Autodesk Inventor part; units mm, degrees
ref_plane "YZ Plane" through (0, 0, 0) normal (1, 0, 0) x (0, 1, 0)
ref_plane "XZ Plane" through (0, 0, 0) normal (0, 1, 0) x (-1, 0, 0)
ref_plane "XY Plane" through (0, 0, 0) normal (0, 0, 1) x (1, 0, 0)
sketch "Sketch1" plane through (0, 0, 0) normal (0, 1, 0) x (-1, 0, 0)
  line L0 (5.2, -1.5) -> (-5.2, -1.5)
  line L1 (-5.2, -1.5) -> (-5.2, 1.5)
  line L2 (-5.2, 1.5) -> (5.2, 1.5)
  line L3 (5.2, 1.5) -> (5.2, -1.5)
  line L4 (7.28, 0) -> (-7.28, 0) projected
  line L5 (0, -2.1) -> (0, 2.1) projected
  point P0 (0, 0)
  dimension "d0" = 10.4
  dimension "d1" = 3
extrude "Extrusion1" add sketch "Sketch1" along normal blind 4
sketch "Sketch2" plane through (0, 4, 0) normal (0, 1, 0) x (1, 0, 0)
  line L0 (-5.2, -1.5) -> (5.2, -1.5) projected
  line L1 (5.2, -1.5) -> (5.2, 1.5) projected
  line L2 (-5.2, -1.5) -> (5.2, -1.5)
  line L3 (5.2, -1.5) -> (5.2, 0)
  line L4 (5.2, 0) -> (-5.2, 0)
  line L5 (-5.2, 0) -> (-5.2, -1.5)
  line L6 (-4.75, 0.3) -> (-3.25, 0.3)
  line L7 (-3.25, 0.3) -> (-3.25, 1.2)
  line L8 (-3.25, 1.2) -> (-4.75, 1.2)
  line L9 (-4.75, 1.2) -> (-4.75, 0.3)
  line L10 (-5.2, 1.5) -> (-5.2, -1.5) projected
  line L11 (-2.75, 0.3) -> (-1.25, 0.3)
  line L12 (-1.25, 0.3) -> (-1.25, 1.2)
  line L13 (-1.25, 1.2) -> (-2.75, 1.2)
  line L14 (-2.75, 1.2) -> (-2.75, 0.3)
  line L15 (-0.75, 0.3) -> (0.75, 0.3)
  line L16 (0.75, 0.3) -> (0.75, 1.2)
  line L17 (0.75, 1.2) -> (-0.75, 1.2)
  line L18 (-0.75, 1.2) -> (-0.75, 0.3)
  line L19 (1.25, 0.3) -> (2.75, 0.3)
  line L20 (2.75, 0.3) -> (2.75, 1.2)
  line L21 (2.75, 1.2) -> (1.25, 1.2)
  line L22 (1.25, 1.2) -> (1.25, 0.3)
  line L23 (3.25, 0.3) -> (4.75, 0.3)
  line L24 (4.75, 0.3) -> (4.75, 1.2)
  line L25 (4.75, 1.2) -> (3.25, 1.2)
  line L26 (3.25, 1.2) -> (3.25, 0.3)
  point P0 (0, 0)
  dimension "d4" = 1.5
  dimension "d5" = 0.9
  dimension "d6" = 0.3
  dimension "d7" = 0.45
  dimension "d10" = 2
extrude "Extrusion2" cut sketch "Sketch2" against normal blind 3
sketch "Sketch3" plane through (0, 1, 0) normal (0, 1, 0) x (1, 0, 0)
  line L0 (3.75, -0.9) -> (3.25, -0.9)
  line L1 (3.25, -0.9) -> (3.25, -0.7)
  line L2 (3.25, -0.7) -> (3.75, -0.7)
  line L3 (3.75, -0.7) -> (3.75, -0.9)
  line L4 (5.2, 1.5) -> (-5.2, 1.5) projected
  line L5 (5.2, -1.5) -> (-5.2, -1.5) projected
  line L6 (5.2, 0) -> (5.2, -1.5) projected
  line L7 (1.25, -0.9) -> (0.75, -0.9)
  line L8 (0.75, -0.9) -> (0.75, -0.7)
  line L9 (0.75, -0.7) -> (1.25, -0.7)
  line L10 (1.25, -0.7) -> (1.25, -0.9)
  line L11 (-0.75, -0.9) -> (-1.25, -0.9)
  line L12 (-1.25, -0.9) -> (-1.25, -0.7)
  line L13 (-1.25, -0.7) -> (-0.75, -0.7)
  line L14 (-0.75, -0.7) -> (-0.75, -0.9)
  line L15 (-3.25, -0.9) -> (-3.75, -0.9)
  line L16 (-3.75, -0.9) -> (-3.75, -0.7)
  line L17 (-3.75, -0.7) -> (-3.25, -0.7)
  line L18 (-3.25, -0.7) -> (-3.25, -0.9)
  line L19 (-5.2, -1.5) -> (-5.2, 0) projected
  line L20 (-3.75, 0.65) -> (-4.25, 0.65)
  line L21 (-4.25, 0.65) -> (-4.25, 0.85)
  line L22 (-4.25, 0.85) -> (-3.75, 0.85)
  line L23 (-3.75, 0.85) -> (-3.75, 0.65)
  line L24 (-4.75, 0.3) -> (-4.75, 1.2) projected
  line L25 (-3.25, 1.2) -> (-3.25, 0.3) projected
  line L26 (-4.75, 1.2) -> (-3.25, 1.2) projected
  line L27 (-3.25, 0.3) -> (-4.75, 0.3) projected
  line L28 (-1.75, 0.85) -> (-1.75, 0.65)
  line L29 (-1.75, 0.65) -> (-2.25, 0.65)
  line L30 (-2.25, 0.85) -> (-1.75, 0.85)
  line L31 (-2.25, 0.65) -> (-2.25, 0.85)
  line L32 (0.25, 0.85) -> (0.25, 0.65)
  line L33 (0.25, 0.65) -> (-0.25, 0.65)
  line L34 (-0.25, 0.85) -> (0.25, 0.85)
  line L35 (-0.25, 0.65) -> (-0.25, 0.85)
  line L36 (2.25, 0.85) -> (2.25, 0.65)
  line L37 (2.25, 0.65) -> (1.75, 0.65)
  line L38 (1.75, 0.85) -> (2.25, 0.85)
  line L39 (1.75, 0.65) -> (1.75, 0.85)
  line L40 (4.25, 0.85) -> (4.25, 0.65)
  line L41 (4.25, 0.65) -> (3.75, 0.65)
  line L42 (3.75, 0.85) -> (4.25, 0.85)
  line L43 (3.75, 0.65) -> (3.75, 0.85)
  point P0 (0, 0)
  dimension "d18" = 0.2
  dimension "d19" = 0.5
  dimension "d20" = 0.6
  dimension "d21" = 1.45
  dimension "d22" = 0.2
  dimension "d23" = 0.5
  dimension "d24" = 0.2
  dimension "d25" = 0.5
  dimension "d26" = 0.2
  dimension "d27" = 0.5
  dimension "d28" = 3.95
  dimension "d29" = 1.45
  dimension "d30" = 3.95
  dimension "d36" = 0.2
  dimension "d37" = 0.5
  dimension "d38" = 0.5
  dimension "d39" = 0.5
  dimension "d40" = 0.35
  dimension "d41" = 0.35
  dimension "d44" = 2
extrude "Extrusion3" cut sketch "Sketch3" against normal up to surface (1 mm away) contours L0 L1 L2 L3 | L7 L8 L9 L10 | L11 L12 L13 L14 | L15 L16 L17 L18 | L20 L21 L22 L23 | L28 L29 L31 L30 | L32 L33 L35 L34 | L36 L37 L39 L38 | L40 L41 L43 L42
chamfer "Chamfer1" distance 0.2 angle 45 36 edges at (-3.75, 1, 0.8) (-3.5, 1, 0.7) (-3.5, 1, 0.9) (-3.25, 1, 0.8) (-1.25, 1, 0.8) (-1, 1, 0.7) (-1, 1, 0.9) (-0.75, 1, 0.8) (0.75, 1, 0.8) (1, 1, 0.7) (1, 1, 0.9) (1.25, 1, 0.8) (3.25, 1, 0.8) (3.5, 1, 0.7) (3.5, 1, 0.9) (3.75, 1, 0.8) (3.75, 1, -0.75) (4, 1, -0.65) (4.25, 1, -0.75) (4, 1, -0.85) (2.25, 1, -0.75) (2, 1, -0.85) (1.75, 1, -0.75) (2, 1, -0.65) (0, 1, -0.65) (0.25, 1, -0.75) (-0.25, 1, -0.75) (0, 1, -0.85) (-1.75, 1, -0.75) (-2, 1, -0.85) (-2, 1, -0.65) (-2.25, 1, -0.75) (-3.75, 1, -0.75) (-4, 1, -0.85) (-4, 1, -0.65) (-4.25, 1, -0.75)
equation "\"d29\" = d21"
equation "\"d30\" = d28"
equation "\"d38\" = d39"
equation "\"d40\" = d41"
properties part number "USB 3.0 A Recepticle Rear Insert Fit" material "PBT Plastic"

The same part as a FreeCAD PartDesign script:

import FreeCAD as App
import Part
import Sketcher
from FreeCAD import Vector
Q = App.Units.Quantity


def edges_at(feature, points):
    """Names of the edges that pass closest to the given points."""
    edges = feature.Shape.Edges
    near = lambda p: min(range(len(edges)), key=lambda i: edges[i].distToShape(Part.Vertex(*p))[0])
    return sorted({f"Edge{near(p) + 1}" for p in points})


def add_polygon(sketch, points):
    """Adds a closed chain of lines whose ends are joined by coincident constraints."""
    first, n = sketch.GeometryCount, len(points)
    for a, b in zip(points, points[1:] + points[:1]):
        sketch.addGeometry(Part.LineSegment(App.Vector(*a, 0), App.Vector(*b, 0)), False)
    for i in range(n):
        sketch.addConstraint(Sketcher.Constraint("Coincident", first + i, 2, first + (i + 1) % n, 1))

doc = App.newDocument("Part")
params = doc.addObject("Spreadsheet::Sheet", "Params")
for row, (alias, value) in enumerate([
    ("sketch1_height", "3 mm"),
    ("sketch1_width", "10.4 mm"),
    ("pad1_length", "4 mm"),
    ("sketch2_width", "1.5 mm"),
    ("sketch2_height", "0.9 mm"),
    ("pocket1_length", "3 mm"),
    ("sketch3_width", "0.5 mm"),
    ("sketch3_height", "0.2 mm"),
    ("pocket2_length", "1 mm"),
    ("chamfer_size", "0.2 mm"),
], start=1):
    params.set(f"A{row}", alias)
    params.set(f"B{row}", "=" + value)
    params.setAlias(f"B{row}", alias)

body = doc.addObject("PartDesign::Body", "Body")

sketch1 = body.newObject("Sketcher::SketchObject", "Sketch")
sketch1.AttachmentSupport = (doc.getObject("XZ_Plane"), [""])
sketch1.MapMode = "FlatFace"
add_polygon(sketch1, [(-5.2, -1.5), (-5.2, 1.5), (5.2, 1.5), (5.2, -1.5)])
sketch1.addConstraint(Sketcher.Constraint("Vertical", 0))
sketch1.addConstraint(Sketcher.Constraint("Horizontal", 1))
sketch1.addConstraint(Sketcher.Constraint("Vertical", 2))
sketch1.addConstraint(Sketcher.Constraint("Horizontal", 3))
sketch1.addConstraint(Sketcher.Constraint("Symmetric", 0, 2, 2, 2, -1, 1))
sketch1.addConstraint(Sketcher.Constraint("DistanceY", 0, 1, 0, 2, Q("3 mm")))
sketch1.addConstraint(Sketcher.Constraint("DistanceX", 1, 1, 1, 2, Q("10.4 mm")))
sketch1.setExpression("Constraints[9]", "Params.sketch1_height")
sketch1.setExpression("Constraints[10]", "Params.sketch1_width")
pad1 = body.newObject("PartDesign::Pad", "Pad")
pad1.Profile = sketch1
pad1.setExpression("Length", "Params.pad1_length")
pad1.Reversed = True

sketch2 = body.newObject("Sketcher::SketchObject", "Sketch001")
sketch2.AttachmentSupport = (doc.getObject("XZ_Plane"), [""])
sketch2.MapMode = "FlatFace"
sketch2.AttachmentOffset = App.Placement(Vector(0, 0, -4), App.Rotation())
add_polygon(sketch2, [(-5.2, 0), (-5.2, 1.5), (5.2, 1.5), (5.2, 0)])
add_polygon(sketch2, [(-4.75, -1.2), (-4.75, -0.3), (-3.25, -0.3), (-3.25, -1.2)])
add_polygon(sketch2, [(-2.75, -1.2), (-2.75, -0.3), (-1.25, -0.3), (-1.25, -1.2)])
add_polygon(sketch2, [(-0.75, -1.2), (-0.75, -0.3), (0.75, -0.3), (0.75, -1.2)])
add_polygon(sketch2, [(1.25, -1.2), (1.25, -0.3), (2.75, -0.3), (2.75, -1.2)])
add_polygon(sketch2, [(3.25, -1.2), (3.25, -0.3), (4.75, -0.3), (4.75, -1.2)])
sketch2.addConstraint(Sketcher.Constraint("Vertical", 0))
sketch2.addConstraint(Sketcher.Constraint("Horizontal", 1))
sketch2.addConstraint(Sketcher.Constraint("Vertical", 2))
sketch2.addConstraint(Sketcher.Constraint("Horizontal", 3))
sketch2.addConstraint(Sketcher.Constraint("Vertical", 4))
sketch2.addConstraint(Sketcher.Constraint("Horizontal", 5))
sketch2.addConstraint(Sketcher.Constraint("Vertical", 6))
sketch2.addConstraint(Sketcher.Constraint("Horizontal", 7))
sketch2.addConstraint(Sketcher.Constraint("Vertical", 8))
sketch2.addConstraint(Sketcher.Constraint("Horizontal", 9))
sketch2.addConstraint(Sketcher.Constraint("Vertical", 10))
sketch2.addConstraint(Sketcher.Constraint("Horizontal", 11))
sketch2.addConstraint(Sketcher.Constraint("Vertical", 12))
sketch2.addConstraint(Sketcher.Constraint("Horizontal", 13))
sketch2.addConstraint(Sketcher.Constraint("Vertical", 14))
sketch2.addConstraint(Sketcher.Constraint("Horizontal", 15))
sketch2.addConstraint(Sketcher.Constraint("Vertical", 16))
sketch2.addConstraint(Sketcher.Constraint("Horizontal", 17))
sketch2.addConstraint(Sketcher.Constraint("Vertical", 18))
sketch2.addConstraint(Sketcher.Constraint("Horizontal", 19))
sketch2.addConstraint(Sketcher.Constraint("Vertical", 20))
sketch2.addConstraint(Sketcher.Constraint("Horizontal", 21))
sketch2.addConstraint(Sketcher.Constraint("Vertical", 22))
sketch2.addConstraint(Sketcher.Constraint("Horizontal", 23))
sketch2.addConstraint(Sketcher.Constraint("Symmetric", 2, 2, 3, 2, -1, 1))
sketch2.addConstraint(Sketcher.Constraint("Symmetric", 9, 2, 16, 2, -2))
sketch2.addConstraint(Sketcher.Constraint("Symmetric", 11, 2, 18, 2, -2))
sketch2.addConstraint(Sketcher.Constraint("Symmetric", 5, 2, 20, 2, -2))
sketch2.addConstraint(Sketcher.Constraint("Symmetric", 7, 2, 22, 2, -2))
sketch2.addConstraint(Sketcher.Constraint("Horizontal", 5, 2, 8, 2))
sketch2.addConstraint(Sketcher.Constraint("Horizontal", 7, 2, 10, 2))
sketch2.addConstraint(Sketcher.Constraint("Horizontal", 9, 2, 12, 2))
sketch2.addConstraint(Sketcher.Constraint("Horizontal", 11, 2, 14, 2))
sketch2.addConstraint(Sketcher.Constraint("Equal", 7, 9))
sketch2.addConstraint(Sketcher.Constraint("Equal", 11, 13))
sketch2.addConstraint(Sketcher.Constraint("Equal", 23, 0))
sketch2.addConstraint(Sketcher.Constraint("DistanceX", 5, 1, 5, 2, Q("1.5 mm")))
sketch2.addConstraint(Sketcher.Constraint("DistanceY", 4, 1, 4, 2, Q("0.9 mm")))
sketch2.addConstraint(Sketcher.Constraint("DistanceX", 4, 2, 8, 2, Q("2 mm")))
sketch2.addConstraint(Sketcher.Constraint("DistanceX", 8, 2, 12, 2, Q("2 mm")))
sketch2.addConstraint(Sketcher.Constraint("DistanceX", 12, 2, 16, 2, Q("2 mm")))
sketch2.addConstraint(Sketcher.Constraint("DistanceY", 4, 2, -1, 1, Q("0.3 mm")))
sketch2.addConstraint(Sketcher.Constraint("DistanceX", 3, 2, 4, 2, Q("0.45 mm")))
sketch2.setExpression("Constraints[60]", "Params.sketch2_width")
sketch2.setExpression("Constraints[61]", "Params.sketch2_height")
pocket1 = body.newObject("PartDesign::Pocket", "Pocket")
pocket1.Profile = sketch2
pocket1.setExpression("Length", "Params.pocket1_length")
pocket1.Reversed = True

sketch3 = body.newObject("Sketcher::SketchObject", "Sketch002")
sketch3.AttachmentSupport = (doc.getObject("XZ_Plane"), [""])
sketch3.MapMode = "FlatFace"
sketch3.AttachmentOffset = App.Placement(Vector(0, 0, -1), App.Rotation())
add_polygon(sketch3, [(3.25, 0.9), (3.75, 0.9), (3.75, 0.7), (3.25, 0.7)])
add_polygon(sketch3, [(0.75, 0.9), (1.25, 0.9), (1.25, 0.7), (0.75, 0.7)])
add_polygon(sketch3, [(-1.25, 0.9), (-0.75, 0.9), (-0.75, 0.7), (-1.25, 0.7)])
add_polygon(sketch3, [(-3.75, 0.9), (-3.25, 0.9), (-3.25, 0.7), (-3.75, 0.7)])
add_polygon(sketch3, [(-4.25, -0.65), (-3.75, -0.65), (-3.75, -0.85), (-4.25, -0.85)])
add_polygon(sketch3, [(-1.75, -0.65), (-1.75, -0.85), (-2.25, -0.85), (-2.25, -0.65)])
add_polygon(sketch3, [(0.25, -0.65), (0.25, -0.85), (-0.25, -0.85), (-0.25, -0.65)])
add_polygon(sketch3, [(2.25, -0.65), (2.25, -0.85), (1.75, -0.85), (1.75, -0.65)])
add_polygon(sketch3, [(4.25, -0.65), (4.25, -0.85), (3.75, -0.85), (3.75, -0.65)])
sketch3.addConstraint(Sketcher.Constraint("Horizontal", 0))
sketch3.addConstraint(Sketcher.Constraint("Vertical", 1))
sketch3.addConstraint(Sketcher.Constraint("Horizontal", 2))
sketch3.addConstraint(Sketcher.Constraint("Vertical", 3))
sketch3.addConstraint(Sketcher.Constraint("Horizontal", 4))
sketch3.addConstraint(Sketcher.Constraint("Vertical", 5))
sketch3.addConstraint(Sketcher.Constraint("Horizontal", 6))
sketch3.addConstraint(Sketcher.Constraint("Vertical", 7))
sketch3.addConstraint(Sketcher.Constraint("Horizontal", 8))
sketch3.addConstraint(Sketcher.Constraint("Vertical", 9))
sketch3.addConstraint(Sketcher.Constraint("Horizontal", 10))
sketch3.addConstraint(Sketcher.Constraint("Vertical", 11))
sketch3.addConstraint(Sketcher.Constraint("Horizontal", 12))
sketch3.addConstraint(Sketcher.Constraint("Vertical", 13))
sketch3.addConstraint(Sketcher.Constraint("Horizontal", 14))
sketch3.addConstraint(Sketcher.Constraint("Vertical", 15))
sketch3.addConstraint(Sketcher.Constraint("Horizontal", 16))
sketch3.addConstraint(Sketcher.Constraint("Vertical", 17))
sketch3.addConstraint(Sketcher.Constraint("Horizontal", 18))
sketch3.addConstraint(Sketcher.Constraint("Vertical", 19))
sketch3.addConstraint(Sketcher.Constraint("Vertical", 20))
sketch3.addConstraint(Sketcher.Constraint("Horizontal", 21))
sketch3.addConstraint(Sketcher.Constraint("Vertical", 22))
sketch3.addConstraint(Sketcher.Constraint("Horizontal", 23))
sketch3.addConstraint(Sketcher.Constraint("Vertical", 24))
sketch3.addConstraint(Sketcher.Constraint("Horizontal", 25))
sketch3.addConstraint(Sketcher.Constraint("Vertical", 26))
sketch3.addConstraint(Sketcher.Constraint("Horizontal", 27))
sketch3.addConstraint(Sketcher.Constraint("Vertical", 28))
sketch3.addConstraint(Sketcher.Constraint("Horizontal", 29))
sketch3.addConstraint(Sketcher.Constraint("Vertical", 30))
sketch3.addConstraint(Sketcher.Constraint("Horizontal", 31))
sketch3.addConstraint(Sketcher.Constraint("Vertical", 32))
sketch3.addConstraint(Sketcher.Constraint("Horizontal", 33))
sketch3.addConstraint(Sketcher.Constraint("Vertical", 34))
sketch3.addConstraint(Sketcher.Constraint("Horizontal", 35))
sketch3.addConstraint(Sketcher.Constraint("Symmetric", 7, 2, 8, 2, -2))
sketch3.addConstraint(Sketcher.Constraint("Symmetric", 5, 2, 10, 2, -2))
sketch3.addConstraint(Sketcher.Constraint("Symmetric", 3, 2, 12, 2, -2))
sketch3.addConstraint(Sketcher.Constraint("Symmetric", 1, 2, 14, 2, -2))
sketch3.addConstraint(Sketcher.Constraint("Symmetric", 21, 2, 28, 2, -2))
sketch3.addConstraint(Sketcher.Constraint("Symmetric", 23, 2, 30, 2, -2))
sketch3.addConstraint(Sketcher.Constraint("Symmetric", 18, 2, 32, 2, -2))
sketch3.addConstraint(Sketcher.Constraint("Symmetric", 16, 2, 34, 2, -2))
sketch3.addConstraint(Sketcher.Constraint("Horizontal", 3, 2, 4, 2))
sketch3.addConstraint(Sketcher.Constraint("Horizontal", 2, 2, 5, 2))
sketch3.addConstraint(Sketcher.Constraint("Horizontal", 18, 2, 20, 2))
sketch3.addConstraint(Sketcher.Constraint("Horizontal", 19, 2, 22, 2))
sketch3.addConstraint(Sketcher.Constraint("Horizontal", 21, 2, 24, 2))
sketch3.addConstraint(Sketcher.Constraint("Horizontal", 23, 2, 26, 2))
sketch3.addConstraint(Sketcher.Constraint("Vertical", 15, 2, 16, 2))
sketch3.addConstraint(Sketcher.Constraint("Equal", 2, 4))
sketch3.addConstraint(Sketcher.Constraint("Equal", 14, 16))
sketch3.addConstraint(Sketcher.Constraint("Equal", 18, 21))
sketch3.addConstraint(Sketcher.Constraint("Equal", 23, 25))
sketch3.addConstraint(Sketcher.Constraint("Equal", 15, 17))
sketch3.addConstraint(Sketcher.Constraint("DistanceX", 0, 1, 0, 2, Q("0.5 mm")))
sketch3.addConstraint(Sketcher.Constraint("DistanceY", 1, 2, 1, 1, Q("0.2 mm")))
sketch3.addConstraint(Sketcher.Constraint("DistanceX", 4, 2, 3, 2, Q("2 mm")))
sketch3.addConstraint(Sketcher.Constraint("DistanceX", 8, 2, 4, 2, Q("2 mm")))
sketch3.addConstraint(Sketcher.Constraint("DistanceX", 17, 2, 20, 2, Q("2 mm")))
sketch3.addConstraint(Sketcher.Constraint("DistanceX", 20, 2, 24, 2, Q("2 mm")))
sketch3.addConstraint(Sketcher.Constraint("DistanceY", -1, 1, 0, 2, Q("0.9 mm")))
sketch3.addConstraint(Sketcher.Constraint("DistanceY", 16, 2, -1, 1, Q("0.65 mm")))
sketch3.setExpression("Constraints[92]", "Params.sketch3_width")
sketch3.setExpression("Constraints[93]", "Params.sketch3_height")
pocket2 = body.newObject("PartDesign::Pocket", "Pocket001")
pocket2.Profile = sketch3
pocket2.setExpression("Length", "Params.pocket2_length")
pocket2.Reversed = True
doc.recompute()

chamfer = body.newObject("PartDesign::Chamfer", "Chamfer")
chamfer.Base = (pocket2, edges_at(pocket2, [
    (-3.75, 1, 0.8),
    (-3.5, 1, 0.7),
    (-3.5, 1, 0.9),
    (-3.25, 1, 0.8),
    (-1.25, 1, 0.8),
    (-1, 1, 0.7),
    (-1, 1, 0.9),
    (-0.75, 1, 0.8),
    (0.75, 1, 0.8),
    (1, 1, 0.7),
    (1, 1, 0.9),
    (1.25, 1, 0.8),
    (3.25, 1, 0.8),
    (3.5, 1, 0.7),
    (3.5, 1, 0.9),
    (3.75, 1, 0.8),
    (3.75, 1, -0.75),
    (4, 1, -0.65),
    (4.25, 1, -0.75),
    (4, 1, -0.85),
    (2.25, 1, -0.75),
    (2, 1, -0.85),
    (1.75, 1, -0.75),
    (2, 1, -0.65),
    (0, 1, -0.65),
    (0.25, 1, -0.75),
    (-0.25, 1, -0.75),
    (0, 1, -0.85),
    (-1.75, 1, -0.75),
    (-2, 1, -0.85),
    (-2, 1, -0.65),
    (-2.25, 1, -0.75),
    (-3.75, 1, -0.75),
    (-4, 1, -0.85),
    (-4, 1, -0.65),
    (-4.25, 1, -0.75),
]))
chamfer.setExpression("Size", "Params.chamfer_size")

doc.recompute()
